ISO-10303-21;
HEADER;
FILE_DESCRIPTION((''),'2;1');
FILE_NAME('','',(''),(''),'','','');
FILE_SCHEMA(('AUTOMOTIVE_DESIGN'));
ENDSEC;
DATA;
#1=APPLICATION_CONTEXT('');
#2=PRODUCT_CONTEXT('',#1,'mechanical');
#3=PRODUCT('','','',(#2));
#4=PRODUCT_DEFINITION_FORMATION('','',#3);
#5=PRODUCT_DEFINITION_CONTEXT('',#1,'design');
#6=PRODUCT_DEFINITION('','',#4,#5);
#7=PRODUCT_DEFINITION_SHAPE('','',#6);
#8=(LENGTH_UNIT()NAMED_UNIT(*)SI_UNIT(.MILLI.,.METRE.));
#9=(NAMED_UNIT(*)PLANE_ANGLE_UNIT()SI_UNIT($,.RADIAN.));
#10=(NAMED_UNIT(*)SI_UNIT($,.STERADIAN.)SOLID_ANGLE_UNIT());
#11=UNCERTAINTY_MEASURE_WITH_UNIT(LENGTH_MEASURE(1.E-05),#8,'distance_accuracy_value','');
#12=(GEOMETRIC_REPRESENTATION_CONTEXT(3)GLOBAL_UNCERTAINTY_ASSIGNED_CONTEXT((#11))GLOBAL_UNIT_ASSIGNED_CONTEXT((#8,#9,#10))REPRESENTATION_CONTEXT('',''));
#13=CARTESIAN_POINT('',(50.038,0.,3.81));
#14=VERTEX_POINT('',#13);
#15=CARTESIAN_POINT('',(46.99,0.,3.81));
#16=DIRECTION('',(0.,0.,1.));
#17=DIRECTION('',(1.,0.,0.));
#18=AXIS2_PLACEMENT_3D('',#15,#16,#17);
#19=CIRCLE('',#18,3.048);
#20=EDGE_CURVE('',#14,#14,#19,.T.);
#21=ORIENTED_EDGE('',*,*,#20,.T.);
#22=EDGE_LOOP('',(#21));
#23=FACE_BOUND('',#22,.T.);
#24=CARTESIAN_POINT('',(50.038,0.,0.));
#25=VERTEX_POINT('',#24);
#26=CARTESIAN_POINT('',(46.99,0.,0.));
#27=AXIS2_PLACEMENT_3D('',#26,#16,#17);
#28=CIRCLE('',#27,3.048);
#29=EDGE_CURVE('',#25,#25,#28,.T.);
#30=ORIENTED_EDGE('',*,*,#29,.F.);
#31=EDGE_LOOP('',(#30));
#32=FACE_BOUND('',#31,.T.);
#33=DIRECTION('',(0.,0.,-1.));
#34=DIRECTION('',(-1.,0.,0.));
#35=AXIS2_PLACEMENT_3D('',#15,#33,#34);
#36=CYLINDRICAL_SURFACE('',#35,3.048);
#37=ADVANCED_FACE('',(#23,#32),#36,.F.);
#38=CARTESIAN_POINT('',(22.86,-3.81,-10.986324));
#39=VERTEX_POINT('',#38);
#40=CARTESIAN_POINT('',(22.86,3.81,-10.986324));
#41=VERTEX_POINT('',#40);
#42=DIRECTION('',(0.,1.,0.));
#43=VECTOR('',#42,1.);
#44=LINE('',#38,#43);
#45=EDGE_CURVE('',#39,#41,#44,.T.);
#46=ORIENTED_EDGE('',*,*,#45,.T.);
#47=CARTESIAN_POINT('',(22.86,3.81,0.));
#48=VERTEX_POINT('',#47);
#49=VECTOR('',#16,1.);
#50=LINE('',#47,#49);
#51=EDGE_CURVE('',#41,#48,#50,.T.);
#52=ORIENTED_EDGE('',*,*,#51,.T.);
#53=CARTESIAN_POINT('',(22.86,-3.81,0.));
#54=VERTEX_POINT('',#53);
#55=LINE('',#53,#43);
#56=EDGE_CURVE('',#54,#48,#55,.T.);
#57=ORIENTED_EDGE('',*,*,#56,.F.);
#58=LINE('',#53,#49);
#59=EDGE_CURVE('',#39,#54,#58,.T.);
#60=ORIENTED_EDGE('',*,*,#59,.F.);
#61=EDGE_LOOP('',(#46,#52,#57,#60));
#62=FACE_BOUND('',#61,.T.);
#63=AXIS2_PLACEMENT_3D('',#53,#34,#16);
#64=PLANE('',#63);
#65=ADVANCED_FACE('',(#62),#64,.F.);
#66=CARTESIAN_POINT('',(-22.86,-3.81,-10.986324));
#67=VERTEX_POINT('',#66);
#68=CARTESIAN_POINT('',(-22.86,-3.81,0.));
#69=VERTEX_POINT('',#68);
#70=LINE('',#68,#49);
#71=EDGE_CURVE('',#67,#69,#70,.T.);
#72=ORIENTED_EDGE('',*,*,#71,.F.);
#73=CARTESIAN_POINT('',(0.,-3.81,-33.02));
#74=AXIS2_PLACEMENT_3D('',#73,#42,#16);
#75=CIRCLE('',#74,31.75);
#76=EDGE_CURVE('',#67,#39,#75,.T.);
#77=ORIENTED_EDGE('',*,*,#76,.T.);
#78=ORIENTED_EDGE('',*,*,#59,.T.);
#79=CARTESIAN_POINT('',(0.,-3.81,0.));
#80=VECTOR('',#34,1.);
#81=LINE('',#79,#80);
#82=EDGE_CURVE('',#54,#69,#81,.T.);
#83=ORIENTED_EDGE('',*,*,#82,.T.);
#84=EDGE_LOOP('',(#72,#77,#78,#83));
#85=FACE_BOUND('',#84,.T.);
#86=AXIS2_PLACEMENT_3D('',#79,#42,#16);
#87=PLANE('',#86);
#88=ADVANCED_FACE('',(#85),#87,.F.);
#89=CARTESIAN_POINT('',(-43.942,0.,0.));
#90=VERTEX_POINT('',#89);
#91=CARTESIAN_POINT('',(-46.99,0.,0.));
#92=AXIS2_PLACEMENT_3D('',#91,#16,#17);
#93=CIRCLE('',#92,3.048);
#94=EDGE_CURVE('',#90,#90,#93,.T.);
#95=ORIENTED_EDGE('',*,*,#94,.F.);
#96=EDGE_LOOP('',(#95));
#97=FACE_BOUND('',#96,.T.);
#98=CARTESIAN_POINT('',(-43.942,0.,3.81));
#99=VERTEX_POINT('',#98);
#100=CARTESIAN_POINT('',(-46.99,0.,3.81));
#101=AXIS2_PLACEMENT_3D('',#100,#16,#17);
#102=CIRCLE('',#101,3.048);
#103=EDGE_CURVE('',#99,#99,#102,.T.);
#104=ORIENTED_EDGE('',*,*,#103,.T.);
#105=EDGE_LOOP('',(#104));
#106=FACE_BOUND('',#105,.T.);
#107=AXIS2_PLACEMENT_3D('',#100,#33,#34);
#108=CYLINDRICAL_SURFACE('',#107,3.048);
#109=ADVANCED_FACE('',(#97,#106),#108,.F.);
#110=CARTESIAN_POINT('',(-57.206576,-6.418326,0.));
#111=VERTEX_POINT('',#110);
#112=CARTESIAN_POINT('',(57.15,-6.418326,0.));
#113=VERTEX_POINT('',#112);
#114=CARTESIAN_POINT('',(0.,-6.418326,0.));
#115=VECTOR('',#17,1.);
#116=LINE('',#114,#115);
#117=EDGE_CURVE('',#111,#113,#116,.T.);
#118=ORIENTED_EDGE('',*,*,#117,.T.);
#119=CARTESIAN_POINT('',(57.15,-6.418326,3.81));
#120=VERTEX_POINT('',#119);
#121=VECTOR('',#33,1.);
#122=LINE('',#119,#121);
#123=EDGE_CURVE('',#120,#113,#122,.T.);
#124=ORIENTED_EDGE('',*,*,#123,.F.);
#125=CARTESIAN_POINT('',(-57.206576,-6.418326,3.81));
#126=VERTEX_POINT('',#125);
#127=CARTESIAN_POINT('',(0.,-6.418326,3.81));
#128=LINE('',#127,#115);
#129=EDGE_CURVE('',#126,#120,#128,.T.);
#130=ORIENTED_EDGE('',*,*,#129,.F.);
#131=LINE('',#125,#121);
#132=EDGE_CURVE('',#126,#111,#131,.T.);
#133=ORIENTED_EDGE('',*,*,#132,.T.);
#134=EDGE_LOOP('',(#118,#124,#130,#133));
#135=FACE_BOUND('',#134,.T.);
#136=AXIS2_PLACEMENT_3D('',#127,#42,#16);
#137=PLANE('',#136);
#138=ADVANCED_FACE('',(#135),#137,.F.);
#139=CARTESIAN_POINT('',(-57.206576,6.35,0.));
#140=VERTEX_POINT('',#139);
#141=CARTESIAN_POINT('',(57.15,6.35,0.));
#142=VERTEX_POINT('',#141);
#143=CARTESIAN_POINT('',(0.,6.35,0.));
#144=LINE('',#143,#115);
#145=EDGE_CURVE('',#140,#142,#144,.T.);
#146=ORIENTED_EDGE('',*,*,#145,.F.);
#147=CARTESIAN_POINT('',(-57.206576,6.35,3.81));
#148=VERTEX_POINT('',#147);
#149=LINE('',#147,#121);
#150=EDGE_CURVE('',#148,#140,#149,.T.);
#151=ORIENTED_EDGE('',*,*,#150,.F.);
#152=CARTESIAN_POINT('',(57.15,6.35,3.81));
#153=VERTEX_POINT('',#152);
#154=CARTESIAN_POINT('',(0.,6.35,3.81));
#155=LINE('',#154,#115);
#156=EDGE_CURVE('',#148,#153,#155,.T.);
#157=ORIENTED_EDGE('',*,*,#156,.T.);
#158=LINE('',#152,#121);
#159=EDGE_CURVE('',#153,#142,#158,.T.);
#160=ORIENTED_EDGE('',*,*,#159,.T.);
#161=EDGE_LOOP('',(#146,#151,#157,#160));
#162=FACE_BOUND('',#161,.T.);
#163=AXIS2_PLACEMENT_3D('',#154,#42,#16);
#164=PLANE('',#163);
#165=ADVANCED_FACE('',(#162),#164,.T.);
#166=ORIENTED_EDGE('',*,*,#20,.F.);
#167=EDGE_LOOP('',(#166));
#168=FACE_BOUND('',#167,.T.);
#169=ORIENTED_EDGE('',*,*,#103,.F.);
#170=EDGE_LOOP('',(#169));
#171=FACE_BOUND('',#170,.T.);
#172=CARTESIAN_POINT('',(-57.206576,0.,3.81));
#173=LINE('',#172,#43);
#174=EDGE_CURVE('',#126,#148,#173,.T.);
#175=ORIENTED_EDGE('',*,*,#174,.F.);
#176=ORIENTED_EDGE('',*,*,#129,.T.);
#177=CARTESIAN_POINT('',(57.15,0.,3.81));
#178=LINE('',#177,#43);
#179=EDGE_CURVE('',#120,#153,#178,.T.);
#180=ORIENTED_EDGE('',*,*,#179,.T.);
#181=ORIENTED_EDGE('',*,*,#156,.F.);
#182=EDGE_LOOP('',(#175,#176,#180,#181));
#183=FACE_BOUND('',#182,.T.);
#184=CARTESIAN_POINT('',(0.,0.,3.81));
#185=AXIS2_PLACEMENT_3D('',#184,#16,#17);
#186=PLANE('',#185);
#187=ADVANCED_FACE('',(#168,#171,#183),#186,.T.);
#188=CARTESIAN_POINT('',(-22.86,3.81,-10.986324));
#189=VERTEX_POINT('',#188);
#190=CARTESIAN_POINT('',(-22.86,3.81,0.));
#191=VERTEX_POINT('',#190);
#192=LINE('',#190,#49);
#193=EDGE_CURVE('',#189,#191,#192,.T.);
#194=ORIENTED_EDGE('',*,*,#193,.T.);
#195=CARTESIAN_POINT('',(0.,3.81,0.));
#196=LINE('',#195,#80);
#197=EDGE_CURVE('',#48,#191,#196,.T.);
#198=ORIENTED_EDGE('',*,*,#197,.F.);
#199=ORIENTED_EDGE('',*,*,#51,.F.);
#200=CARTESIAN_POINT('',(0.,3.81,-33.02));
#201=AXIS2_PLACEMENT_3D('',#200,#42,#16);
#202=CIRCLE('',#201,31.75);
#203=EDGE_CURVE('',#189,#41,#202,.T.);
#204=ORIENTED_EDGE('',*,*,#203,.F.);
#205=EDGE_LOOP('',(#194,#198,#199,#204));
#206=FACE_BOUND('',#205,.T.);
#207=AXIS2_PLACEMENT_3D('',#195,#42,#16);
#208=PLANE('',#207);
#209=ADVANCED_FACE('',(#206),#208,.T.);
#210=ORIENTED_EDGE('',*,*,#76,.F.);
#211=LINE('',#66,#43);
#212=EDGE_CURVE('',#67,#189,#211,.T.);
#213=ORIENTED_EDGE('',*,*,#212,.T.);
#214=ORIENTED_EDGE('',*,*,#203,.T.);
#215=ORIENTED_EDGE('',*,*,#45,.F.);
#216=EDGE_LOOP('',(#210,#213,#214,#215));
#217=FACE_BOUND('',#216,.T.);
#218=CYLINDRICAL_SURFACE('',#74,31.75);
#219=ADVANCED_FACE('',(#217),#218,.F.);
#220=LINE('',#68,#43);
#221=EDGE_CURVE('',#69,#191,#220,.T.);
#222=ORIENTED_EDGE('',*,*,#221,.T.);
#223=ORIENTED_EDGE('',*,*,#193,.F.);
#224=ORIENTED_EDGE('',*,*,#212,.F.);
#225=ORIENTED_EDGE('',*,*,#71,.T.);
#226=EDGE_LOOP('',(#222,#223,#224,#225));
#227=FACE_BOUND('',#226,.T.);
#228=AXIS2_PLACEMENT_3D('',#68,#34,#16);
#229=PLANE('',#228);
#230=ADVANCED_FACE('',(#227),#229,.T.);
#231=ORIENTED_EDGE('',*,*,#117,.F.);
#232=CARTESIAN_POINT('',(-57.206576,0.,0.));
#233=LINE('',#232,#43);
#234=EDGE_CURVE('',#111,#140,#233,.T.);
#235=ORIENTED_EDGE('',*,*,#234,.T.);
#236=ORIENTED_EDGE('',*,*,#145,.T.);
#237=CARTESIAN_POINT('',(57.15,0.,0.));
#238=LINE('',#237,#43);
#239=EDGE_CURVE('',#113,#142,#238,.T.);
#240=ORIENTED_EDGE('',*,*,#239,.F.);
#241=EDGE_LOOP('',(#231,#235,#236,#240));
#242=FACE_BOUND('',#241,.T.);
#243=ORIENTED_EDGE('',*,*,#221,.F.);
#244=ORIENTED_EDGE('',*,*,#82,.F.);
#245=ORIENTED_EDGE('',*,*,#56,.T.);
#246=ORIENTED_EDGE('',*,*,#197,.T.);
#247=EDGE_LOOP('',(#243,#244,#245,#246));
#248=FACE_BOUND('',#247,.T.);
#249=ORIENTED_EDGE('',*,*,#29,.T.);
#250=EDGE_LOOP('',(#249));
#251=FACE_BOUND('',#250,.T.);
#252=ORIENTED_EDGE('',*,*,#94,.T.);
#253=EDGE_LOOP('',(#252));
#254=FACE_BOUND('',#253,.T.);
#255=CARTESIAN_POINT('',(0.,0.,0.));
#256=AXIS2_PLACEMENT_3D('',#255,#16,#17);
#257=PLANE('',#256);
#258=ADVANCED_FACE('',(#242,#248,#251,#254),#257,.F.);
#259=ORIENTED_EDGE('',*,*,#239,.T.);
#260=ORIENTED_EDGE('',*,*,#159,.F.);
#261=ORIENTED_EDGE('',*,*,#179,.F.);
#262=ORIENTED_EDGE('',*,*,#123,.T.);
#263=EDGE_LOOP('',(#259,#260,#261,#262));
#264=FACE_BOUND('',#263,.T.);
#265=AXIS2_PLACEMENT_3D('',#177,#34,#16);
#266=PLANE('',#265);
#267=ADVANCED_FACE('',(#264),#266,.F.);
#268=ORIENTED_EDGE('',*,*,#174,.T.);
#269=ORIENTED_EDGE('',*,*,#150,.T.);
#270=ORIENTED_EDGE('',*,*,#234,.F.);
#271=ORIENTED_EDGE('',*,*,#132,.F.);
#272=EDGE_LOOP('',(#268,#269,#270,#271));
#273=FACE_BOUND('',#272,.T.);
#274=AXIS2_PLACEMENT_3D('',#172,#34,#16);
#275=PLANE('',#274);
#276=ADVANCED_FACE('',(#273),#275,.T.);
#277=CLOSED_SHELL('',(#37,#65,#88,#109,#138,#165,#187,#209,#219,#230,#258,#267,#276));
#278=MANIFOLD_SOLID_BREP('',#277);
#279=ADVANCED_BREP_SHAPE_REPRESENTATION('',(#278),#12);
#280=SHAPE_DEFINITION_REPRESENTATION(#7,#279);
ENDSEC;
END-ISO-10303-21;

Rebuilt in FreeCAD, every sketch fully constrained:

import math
import FreeCAD as App
import Part
import Sketcher
from FreeCAD import Vector
Q = App.Units.Quantity

doc = App.newDocument("Part")
params = doc.addObject("Spreadsheet::Sheet", "Params")
for row, (alias, value) in enumerate([
    ("sketch1_diameter", "0.24 in"),
    ("pad1_length", "0.15 in"),
    ("sketch2_radius", "1.25 in"),
    ("sketch2_width", "1.8 in"),
    ("pad2_length", "0.15 in"),
    ("pad2_length2", "0.15 in"),
], start=1):
    params.set(f"A{row}", alias)
    params.set(f"B{row}", "=" + value)
    params.setAlias(f"B{row}", alias)

body = doc.addObject("PartDesign::Body", "Body")

# Sketch on XY plane
sketch1 = body.newObject("Sketcher::SketchObject", "Sketch")
sketch1.AttachmentSupport = (doc.getObject("XY_Plane"), [""])
sketch1.MapMode = "FlatFace"
sketch1.addGeometry(Part.LineSegment(Vector(-57.2, 6.3, 0), Vector(-57.2, -6.4, 0)), False)
sketch1.addGeometry(Part.LineSegment(Vector(-57.2, -6.4, 0), Vector(57.1, -6.4, 0)), False)
sketch1.addGeometry(Part.LineSegment(Vector(57.1, -6.4, 0), Vector(57.1, 6.3, 0)), False)
sketch1.addGeometry(Part.LineSegment(Vector(57.1, 6.3, 0), Vector(-57.2, 6.3, 0)), False)
sketch1.addGeometry(Part.Circle(Vector(-47, 0, 0), Vector(0, 0, 1), 3), False)
sketch1.addGeometry(Part.Circle(Vector(47, 0, 0), Vector(0, 0, 1), 3), False)
sketch1.addConstraint(Sketcher.Constraint("Coincident", 0, 2, 1, 1))
sketch1.addConstraint(Sketcher.Constraint("Coincident", 1, 2, 2, 1))
sketch1.addConstraint(Sketcher.Constraint("Coincident", 2, 2, 3, 1))
sketch1.addConstraint(Sketcher.Constraint("Coincident", 3, 2, 0, 1))
sketch1.addConstraint(Sketcher.Constraint("Vertical", 0))
sketch1.addConstraint(Sketcher.Constraint("Horizontal", 1))
sketch1.addConstraint(Sketcher.Constraint("Vertical", 2))
sketch1.addConstraint(Sketcher.Constraint("Horizontal", 3))
sketch1.addConstraint(Sketcher.Constraint("Equal", 4, 5))
sketch1.addConstraint(Sketcher.Constraint("Symmetric", 4, 3, 5, 3, -1, 1))
sketch1.addConstraint(Sketcher.Constraint("PointOnObject", 4, 3, -1))
sketch1.addConstraint(Sketcher.Constraint("Diameter", 4, Q("0.24 in")))
sketch1.addConstraint(Sketcher.Constraint("DistanceX", 4, 3, 5, 3, Q("3.7 in")))
sketch1.addConstraint(Sketcher.Constraint("DistanceX", 5, 3, 1, 2, Q("0.4 in")))
sketch1.addConstraint(Sketcher.Constraint("DistanceY", -1, 1, 2, 2, Q("0.25 in")))
sketch1.addConstraint(Sketcher.Constraint("DistanceX", 1, 1, 1, 2, Q("114.356576 mm")))
sketch1.addConstraint(Sketcher.Constraint("DistanceY", 0, 2, 0, 1, Q("12.768326 mm")))
sketch1.setExpression("Constraints[11]", "Params.sketch1_diameter")
pad1 = body.newObject("PartDesign::Pad", "Pad")
pad1.Profile = sketch1
pad1.setExpression("Length", "Params.pad1_length")

# Sketch on XZ plane
sketch2 = body.newObject("Sketcher::SketchObject", "Sketch001")
sketch2.AttachmentSupport = (doc.getObject("XZ_Plane"), [""])
sketch2.MapMode = "FlatFace"
sketch2.addGeometry(Part.LineSegment(Vector(23, 0, 0), Vector(23, -11, 0)), False)
sketch2.addGeometry(Part.ArcOfCircle(Part.Circle(Vector(0, -33, 0), Vector(0, 0, 1), 32), math.radians(44), math.radians(136)), False)
sketch2.addGeometry(Part.LineSegment(Vector(-23, -11, 0), Vector(-23, 0, 0)), False)
sketch2.addGeometry(Part.LineSegment(Vector(-23, 0, 0), Vector(23, 0, 0)), False)
sketch2.addConstraint(Sketcher.Constraint("Coincident", 0, 2, 1, 1))
sketch2.addConstraint(Sketcher.Constraint("Coincident", 1, 2, 2, 1))
sketch2.addConstraint(Sketcher.Constraint("Coincident", 2, 2, 3, 1))
sketch2.addConstraint(Sketcher.Constraint("Coincident", 3, 2, 0, 1))
sketch2.addConstraint(Sketcher.Constraint("Vertical", 0))
sketch2.addConstraint(Sketcher.Constraint("Vertical", 2))
sketch2.addConstraint(Sketcher.Constraint("Horizontal", 3))
sketch2.addConstraint(Sketcher.Constraint("Symmetric", 2, 2, 3, 2, -1, 1))
sketch2.addConstraint(Sketcher.Constraint("PointOnObject", 1, 3, -2))
sketch2.addConstraint(Sketcher.Constraint("Radius", 1, Q("1.25 in")))
sketch2.addConstraint(Sketcher.Constraint("DistanceX", 3, 1, 3, 2, Q("1.8 in")))
sketch2.addConstraint(Sketcher.Constraint("DistanceY", 1, 3, -1, 1, Q("1.3 in")))
sketch2.setExpression("Constraints[9]", "Params.sketch2_radius")
sketch2.setExpression("Constraints[10]", "Params.sketch2_width")
pad2 = body.newObject("PartDesign::Pad", "Pad001")
pad2.Profile = sketch2
pad2.Type = "TwoLengths"
pad2.setExpression("Length", "Params.pad2_length")
pad2.setExpression("Length2", "Params.pad2_length2")
pad2.Reversed = True

doc.recompute()
